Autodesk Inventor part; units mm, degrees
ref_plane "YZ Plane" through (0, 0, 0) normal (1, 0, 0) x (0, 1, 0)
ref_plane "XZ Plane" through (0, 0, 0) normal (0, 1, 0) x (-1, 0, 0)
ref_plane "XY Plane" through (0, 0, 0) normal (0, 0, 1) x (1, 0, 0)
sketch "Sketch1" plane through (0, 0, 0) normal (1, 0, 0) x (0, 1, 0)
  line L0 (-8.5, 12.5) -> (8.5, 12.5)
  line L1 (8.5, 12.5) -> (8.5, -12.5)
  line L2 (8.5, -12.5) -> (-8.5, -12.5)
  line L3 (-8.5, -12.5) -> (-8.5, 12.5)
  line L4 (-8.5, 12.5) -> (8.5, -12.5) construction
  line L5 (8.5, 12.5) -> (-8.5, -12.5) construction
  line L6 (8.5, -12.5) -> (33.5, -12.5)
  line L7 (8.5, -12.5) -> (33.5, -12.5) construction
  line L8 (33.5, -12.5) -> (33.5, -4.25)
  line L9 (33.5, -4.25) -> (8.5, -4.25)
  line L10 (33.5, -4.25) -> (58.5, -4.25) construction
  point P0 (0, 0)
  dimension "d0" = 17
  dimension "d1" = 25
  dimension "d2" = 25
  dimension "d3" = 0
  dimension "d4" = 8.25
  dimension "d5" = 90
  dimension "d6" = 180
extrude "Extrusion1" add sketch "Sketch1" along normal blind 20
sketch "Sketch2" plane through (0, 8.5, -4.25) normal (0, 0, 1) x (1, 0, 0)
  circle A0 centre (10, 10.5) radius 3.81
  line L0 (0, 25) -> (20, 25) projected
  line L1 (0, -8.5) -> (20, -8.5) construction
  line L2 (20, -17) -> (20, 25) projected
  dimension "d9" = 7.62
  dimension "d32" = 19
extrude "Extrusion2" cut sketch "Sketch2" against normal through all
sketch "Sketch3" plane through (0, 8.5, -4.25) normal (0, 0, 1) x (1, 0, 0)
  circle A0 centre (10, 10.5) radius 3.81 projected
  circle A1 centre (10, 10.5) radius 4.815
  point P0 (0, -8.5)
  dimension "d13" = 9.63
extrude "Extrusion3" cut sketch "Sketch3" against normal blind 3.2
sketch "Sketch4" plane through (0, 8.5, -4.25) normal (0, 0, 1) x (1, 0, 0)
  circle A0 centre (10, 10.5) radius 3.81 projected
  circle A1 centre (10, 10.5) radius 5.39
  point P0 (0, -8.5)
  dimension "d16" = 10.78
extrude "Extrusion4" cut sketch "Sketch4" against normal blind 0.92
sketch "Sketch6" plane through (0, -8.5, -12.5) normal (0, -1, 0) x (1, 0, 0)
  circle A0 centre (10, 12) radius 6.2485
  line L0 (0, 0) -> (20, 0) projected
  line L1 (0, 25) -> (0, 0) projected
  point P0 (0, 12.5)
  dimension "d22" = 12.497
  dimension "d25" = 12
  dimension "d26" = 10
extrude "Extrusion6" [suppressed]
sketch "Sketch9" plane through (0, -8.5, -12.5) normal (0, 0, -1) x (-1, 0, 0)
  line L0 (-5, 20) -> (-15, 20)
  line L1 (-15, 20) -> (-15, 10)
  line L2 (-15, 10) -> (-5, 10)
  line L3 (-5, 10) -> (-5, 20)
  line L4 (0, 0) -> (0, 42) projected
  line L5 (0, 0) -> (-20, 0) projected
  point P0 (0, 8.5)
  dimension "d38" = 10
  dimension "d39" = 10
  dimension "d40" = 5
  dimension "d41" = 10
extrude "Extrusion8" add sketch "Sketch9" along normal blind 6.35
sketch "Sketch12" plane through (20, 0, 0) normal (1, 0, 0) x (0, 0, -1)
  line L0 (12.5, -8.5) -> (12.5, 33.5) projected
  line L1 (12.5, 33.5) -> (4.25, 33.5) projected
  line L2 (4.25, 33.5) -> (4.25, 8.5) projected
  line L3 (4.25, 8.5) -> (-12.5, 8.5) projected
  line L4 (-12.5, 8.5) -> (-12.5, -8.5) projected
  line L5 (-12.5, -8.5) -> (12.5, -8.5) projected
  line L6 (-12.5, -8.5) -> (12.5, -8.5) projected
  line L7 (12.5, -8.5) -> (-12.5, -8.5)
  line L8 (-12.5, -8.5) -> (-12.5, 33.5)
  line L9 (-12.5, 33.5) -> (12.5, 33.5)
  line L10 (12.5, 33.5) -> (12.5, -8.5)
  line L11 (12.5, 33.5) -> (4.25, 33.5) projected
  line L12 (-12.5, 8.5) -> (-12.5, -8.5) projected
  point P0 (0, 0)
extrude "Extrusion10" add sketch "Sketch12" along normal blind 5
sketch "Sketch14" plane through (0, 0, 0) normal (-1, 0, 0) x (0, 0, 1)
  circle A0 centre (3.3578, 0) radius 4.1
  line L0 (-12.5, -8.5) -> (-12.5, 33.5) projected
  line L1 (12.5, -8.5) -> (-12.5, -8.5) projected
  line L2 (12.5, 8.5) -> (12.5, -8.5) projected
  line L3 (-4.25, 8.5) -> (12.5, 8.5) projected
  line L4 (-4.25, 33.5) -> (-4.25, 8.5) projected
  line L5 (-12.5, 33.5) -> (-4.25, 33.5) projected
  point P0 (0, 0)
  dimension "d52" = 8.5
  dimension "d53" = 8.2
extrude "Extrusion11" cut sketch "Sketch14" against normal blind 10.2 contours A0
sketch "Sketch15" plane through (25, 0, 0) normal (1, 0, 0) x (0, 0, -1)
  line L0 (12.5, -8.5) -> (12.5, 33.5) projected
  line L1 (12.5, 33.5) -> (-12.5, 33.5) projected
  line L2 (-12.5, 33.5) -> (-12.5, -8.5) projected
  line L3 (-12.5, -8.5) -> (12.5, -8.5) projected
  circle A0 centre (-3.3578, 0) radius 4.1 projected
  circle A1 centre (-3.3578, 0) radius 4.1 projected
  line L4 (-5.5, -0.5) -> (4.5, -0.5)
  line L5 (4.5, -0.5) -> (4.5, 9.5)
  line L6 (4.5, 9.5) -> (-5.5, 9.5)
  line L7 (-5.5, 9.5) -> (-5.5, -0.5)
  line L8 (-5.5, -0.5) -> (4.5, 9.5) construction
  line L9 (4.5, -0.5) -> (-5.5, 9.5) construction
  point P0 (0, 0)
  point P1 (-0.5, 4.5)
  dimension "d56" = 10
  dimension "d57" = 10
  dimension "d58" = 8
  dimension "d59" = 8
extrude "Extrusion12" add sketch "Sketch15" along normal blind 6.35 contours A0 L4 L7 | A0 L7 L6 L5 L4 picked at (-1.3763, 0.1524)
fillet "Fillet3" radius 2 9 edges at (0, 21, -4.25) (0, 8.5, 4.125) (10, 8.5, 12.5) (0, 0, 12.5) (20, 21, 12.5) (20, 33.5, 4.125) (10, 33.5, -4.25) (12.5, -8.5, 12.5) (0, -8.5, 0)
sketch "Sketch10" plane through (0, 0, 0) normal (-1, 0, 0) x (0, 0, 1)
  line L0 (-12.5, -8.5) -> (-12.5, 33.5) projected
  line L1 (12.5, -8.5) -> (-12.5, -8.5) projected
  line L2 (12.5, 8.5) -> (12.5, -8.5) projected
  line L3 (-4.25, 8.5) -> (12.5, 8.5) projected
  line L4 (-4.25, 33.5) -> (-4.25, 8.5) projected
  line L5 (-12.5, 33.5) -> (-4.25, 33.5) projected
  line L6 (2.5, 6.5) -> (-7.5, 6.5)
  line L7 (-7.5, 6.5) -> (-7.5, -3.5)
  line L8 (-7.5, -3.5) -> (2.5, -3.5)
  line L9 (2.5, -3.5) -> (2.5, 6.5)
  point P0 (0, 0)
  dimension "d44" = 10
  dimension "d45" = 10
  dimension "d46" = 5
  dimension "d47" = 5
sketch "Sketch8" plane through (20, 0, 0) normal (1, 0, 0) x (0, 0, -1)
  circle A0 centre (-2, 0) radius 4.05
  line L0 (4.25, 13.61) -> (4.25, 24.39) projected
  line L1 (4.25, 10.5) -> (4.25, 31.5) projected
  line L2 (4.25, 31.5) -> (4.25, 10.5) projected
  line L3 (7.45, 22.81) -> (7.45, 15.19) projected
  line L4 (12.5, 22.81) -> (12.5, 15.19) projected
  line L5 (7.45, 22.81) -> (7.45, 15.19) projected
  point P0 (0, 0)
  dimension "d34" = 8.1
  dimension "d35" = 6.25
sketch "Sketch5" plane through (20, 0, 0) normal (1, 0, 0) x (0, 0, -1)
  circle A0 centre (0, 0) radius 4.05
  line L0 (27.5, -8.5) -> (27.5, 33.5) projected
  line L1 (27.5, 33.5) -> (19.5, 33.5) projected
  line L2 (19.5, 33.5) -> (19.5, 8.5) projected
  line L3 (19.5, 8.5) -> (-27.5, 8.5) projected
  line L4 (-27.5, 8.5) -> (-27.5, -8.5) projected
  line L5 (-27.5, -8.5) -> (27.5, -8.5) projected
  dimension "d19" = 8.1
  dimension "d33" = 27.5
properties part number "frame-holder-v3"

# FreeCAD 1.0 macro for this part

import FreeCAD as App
import Part
import Sketcher

V = App.Vector


def edges_at(feature, points):
    """Names of the edges that pass closest to the given points."""
    edges = feature.Shape.Edges
    near = lambda p: min(range(len(edges)), key=lambda i: edges[i].distToShape(Part.Vertex(*p))[0])
    return sorted({f"Edge{near(p) + 1}" for p in points})

doc = App.newDocument("Part")
body = doc.addObject("PartDesign::Body", "Body")

sketch1 = doc.addObject("Sketcher::SketchObject", "Sketch")
body.addObject(sketch1)
sketch1.AttachmentSupport = (doc.YZ_Plane, [""])
sketch1.MapMode = "FlatFace"
sketch1.addGeometry([
    Part.LineSegment(V(8, 12, 0), V(-8, 12, 0)),
    Part.LineSegment(V(-8, 12, 0), V(-8, -12, 0)),
    Part.LineSegment(V(-8, -12, 0), V(34, -12, 0)),
    Part.LineSegment(V(34, -12, 0), V(34, -4, 0)),
    Part.LineSegment(V(34, -4, 0), V(8, -4, 0)),
    Part.LineSegment(V(8, -4, 0), V(8, 12, 0)),
], False)
sketch1.addConstraint([
    Sketcher.Constraint("Coincident", 0, 2, 1, 1),
    Sketcher.Constraint("Coincident", 1, 2, 2, 1),
    Sketcher.Constraint("Coincident", 2, 2, 3, 1),
    Sketcher.Constraint("Coincident", 3, 2, 4, 1),
    Sketcher.Constraint("Coincident", 4, 2, 5, 1),
    Sketcher.Constraint("Coincident", 5, 2, 0, 1),
    Sketcher.Constraint("Horizontal", 0),
    Sketcher.Constraint("Vertical", 1),
    Sketcher.Constraint("Horizontal", 2),
    Sketcher.Constraint("Vertical", 3),
    Sketcher.Constraint("Horizontal", 4),
    Sketcher.Constraint("Vertical", 5),
    Sketcher.Constraint("Symmetric", 1, 2, 5, 2, -1, 1),
    Sketcher.Constraint("Equal", 4, 1),
    Sketcher.Constraint("DistanceX", 0, 2, 0, 1, 17.0),
    Sketcher.Constraint("DistanceX", 4, 2, 4, 1, 25.0),
    Sketcher.Constraint("DistanceY", 3, 1, 3, 2, 8.25),
])
pad1 = doc.addObject("PartDesign::Pad", "Pad")
body.addObject(pad1)
pad1.Profile = sketch1
pad1.Length = 20

sketch2 = doc.addObject("Sketcher::SketchObject", "Sketch001")
body.addObject(sketch2)
sketch2.AttachmentSupport = (doc.XY_Plane, [""])
sketch2.MapMode = "FlatFace"
sketch2.AttachmentOffset = App.Placement(V(0, 0, -4.25), App.Rotation())
sketch2.addGeometry(Part.Circle(V(10, 19, 0), V(0, 0, 1), 3.8), False)
sketch2.addConstraint([
    Sketcher.Constraint("Diameter", 0, 7.62),
    Sketcher.Constraint("DistanceY", -1, 1, 0, 3, 19.0),
    Sketcher.Constraint("DistanceX", -1, 1, 0, 3, 10.0),
])
pocket1 = doc.addObject("PartDesign::Pocket", "Pocket")
body.addObject(pocket1)
pocket1.Profile = sketch2
pocket1.Type = "ThroughAll"

sketch3 = doc.addObject("Sketcher::SketchObject", "Sketch002")
body.addObject(sketch3)
sketch3.AttachmentSupport = (doc.XY_Plane, [""])
sketch3.MapMode = "FlatFace"
sketch3.AttachmentOffset = App.Placement(V(0, 0, -4.25), App.Rotation())
sketch3.addGeometry([
    Part.Circle(V(10, 19, 0), V(0, 0, 1), 4.8),
    Part.Circle(V(10, 19, 0), V(0, 0, 1), 3.8),
], False)
sketch3.addConstraint([
    Sketcher.Constraint("Coincident", 1, 3, 0, 3),
    Sketcher.Constraint("Diameter", 0, 9.63),
    Sketcher.Constraint("Diameter", 1, 7.62),
    Sketcher.Constraint("DistanceX", -1, 1, 0, 3, 10.0),
    Sketcher.Constraint("DistanceY", -1, 1, 0, 3, 19.0),
])
pocket2 = doc.addObject("PartDesign::Pocket", "Pocket001")
body.addObject(pocket2)
pocket2.Profile = sketch3
pocket2.Length = 3.2

sketch4 = doc.addObject("Sketcher::SketchObject", "Sketch003")
body.addObject(sketch4)
sketch4.AttachmentSupport = (doc.XY_Plane, [""])
sketch4.MapMode = "FlatFace"
sketch4.AttachmentOffset = App.Placement(V(0, 0, -4.25), App.Rotation())
sketch4.addGeometry([
    Part.Circle(V(10, 19, 0), V(0, 0, 1), 5.4),
    Part.Circle(V(10, 19, 0), V(0, 0, 1), 3.8),
], False)
sketch4.addConstraint([
    Sketcher.Constraint("Coincident", 1, 3, 0, 3),
    Sketcher.Constraint("Diameter", 0, 10.78),
    Sketcher.Constraint("Diameter", 1, 7.62),
    Sketcher.Constraint("DistanceX", -1, 1, 0, 3, 10.0),
    Sketcher.Constraint("DistanceY", -1, 1, 0, 3, 19.0),
])
pocket3 = doc.addObject("PartDesign::Pocket", "Pocket002")
body.addObject(pocket3)
pocket3.Profile = sketch4
pocket3.Length = 0.92

sketch5 = doc.addObject("Sketcher::SketchObject", "Sketch004")
body.addObject(sketch5)
sketch5.AttachmentSupport = (doc.XY_Plane, [""])
sketch5.MapMode = "FlatFace"
sketch5.AttachmentOffset = App.Placement(V(0, 0, -12.5), App.Rotation())
sketch5.addGeometry([
    Part.LineSegment(V(5, 2, 0), V(5, 12, 0)),
    Part.LineSegment(V(5, 12, 0), V(15, 12, 0)),
    Part.LineSegment(V(15, 12, 0), V(15, 2, 0)),
    Part.LineSegment(V(15, 2, 0), V(5, 2, 0)),
], False)
sketch5.addConstraint([
    Sketcher.Constraint("Coincident", 0, 2, 1, 1),
    Sketcher.Constraint("Coincident", 1, 2, 2, 1),
    Sketcher.Constraint("Coincident", 2, 2, 3, 1),
    Sketcher.Constraint("Coincident", 3, 2, 0, 1),
    Sketcher.Constraint("Vertical", 0),
    Sketcher.Constraint("Horizontal", 1),
    Sketcher.Constraint("Vertical", 2),
    Sketcher.Constraint("Horizontal", 3),
    Sketcher.Constraint("Equal", 3, 0),
    Sketcher.Constraint("DistanceX", 1, 1, 1, 2, 10.0),
    Sketcher.Constraint("DistanceX", -1, 1, 0, 2, 5.0),
    Sketcher.Constraint("DistanceY", -1, 1, 0, 2, 11.5),
])
pad2 = doc.addObject("PartDesign::Pad", "Pad001")
body.addObject(pad2)
pad2.Profile = sketch5
pad2.Length = 6.35
pad2.Reversed = True

sketch6 = doc.addObject("Sketcher::SketchObject", "Sketch005")
body.addObject(sketch6)
sketch6.AttachmentSupport = (doc.YZ_Plane, [""])
sketch6.MapMode = "FlatFace"
sketch6.AttachmentOffset = App.Placement(V(0, 0, 20), App.Rotation())
sketch6.addGeometry([
    Part.LineSegment(V(-8, 12, 0), V(-8, -12, 0)),
    Part.LineSegment(V(-8, -12, 0), V(34, -12, 0)),
    Part.LineSegment(V(34, -12, 0), V(34, 12, 0)),
    Part.LineSegment(V(34, 12, 0), V(-8, 12, 0)),
], False)
sketch6.addConstraint([
    Sketcher.Constraint("Coincident", 0, 2, 1, 1),
    Sketcher.Constraint("Coincident", 1, 2, 2, 1),
    Sketcher.Constraint("Coincident", 2, 2, 3, 1),
    Sketcher.Constraint("Coincident", 3, 2, 0, 1),
    Sketcher.Constraint("Vertical", 0),
    Sketcher.Constraint("Horizontal", 1),
    Sketcher.Constraint("Vertical", 2),
    Sketcher.Constraint("Horizontal", 3),
    Sketcher.Constraint("DistanceX", 1, 1, 1, 2, 42.0),
    Sketcher.Constraint("DistanceY", 0, 2, 0, 1, 25.0),
    Sketcher.Constraint("DistanceX", 0, 2, -1, 1, 8.5),
    Sketcher.Constraint("DistanceY", 0, 2, -1, 1, 12.5),
])
pad3 = doc.addObject("PartDesign::Pad", "Pad002")
body.addObject(pad3)
pad3.Profile = sketch6
pad3.Length = 5

sketch7 = doc.addObject("Sketcher::SketchObject", "Sketch006")
body.addObject(sketch7)
sketch7.AttachmentSupport = (doc.YZ_Plane, [""])
sketch7.MapMode = "FlatFace"
sketch7.addGeometry(Part.Circle(V(0, 3.4, 0), V(0, 0, 1), 4.1), False)
sketch7.addConstraint([
    Sketcher.Constraint("PointOnObject", 0, 3, -2),
    Sketcher.Constraint("Diameter", 0, 8.2),
    Sketcher.Constraint("DistanceY", -1, 1, 0, 3, 3.3578),
])
pocket4 = doc.addObject("PartDesign::Pocket", "Pocket003")
body.addObject(pocket4)
pocket4.Profile = sketch7
pocket4.Length = 10.2
pocket4.Reversed = True

sketch8 = doc.addObject("Sketcher::SketchObject", "Sketch007")
body.addObject(sketch8)
sketch8.AttachmentSupport = (doc.YZ_Plane, [""])
sketch8.MapMode = "FlatFace"
sketch8.AttachmentOffset = App.Placement(V(0, 0, 25), App.Rotation())
sketch8.addGeometry([
    Part.LineSegment(V(0, 6, 0), V(0, -4, 0)),
    Part.LineSegment(V(0, -4, 0), V(10, -4, 0)),
    Part.LineSegment(V(10, -4, 0), V(10, 6, 0)),
    Part.LineSegment(V(10, 6, 0), V(0, 6, 0)),
], False)
sketch8.addConstraint([
    Sketcher.Constraint("Coincident", 0, 2, 1, 1),
    Sketcher.Constraint("Coincident", 1, 2, 2, 1),
    Sketcher.Constraint("Coincident", 2, 2, 3, 1),
    Sketcher.Constraint("Coincident", 3, 2, 0, 1),
    Sketcher.Constraint("Vertical", 0),
    Sketcher.Constraint("Horizontal", 1),
    Sketcher.Constraint("Vertical", 2),
    Sketcher.Constraint("Horizontal", 3),
    Sketcher.Constraint("Equal", 3, 0),
    Sketcher.Constraint("DistanceX", 1, 1, 1, 2, 10.0),
    Sketcher.Constraint("DistanceX", 0, 2, -1, 1, 0.5),
    Sketcher.Constraint("DistanceY", 0, 2, -1, 1, 4.5),
])
pad4 = doc.addObject("PartDesign::Pad", "Pad003")
body.addObject(pad4)
pad4.Profile = sketch8
pad4.Length = 6.35
doc.recompute()

fillet = doc.addObject("PartDesign::Fillet", "Fillet")
body.addObject(fillet)
fillet.Base = (pad4, edges_at(pad4, [
    (0, 21, -4.25),
    (0, 8.5, 4.125),
    (10, 8.5, 12.5),
    (0, 0, 12.5),
    (20, 21, 12.5),
    (20, 33.5, 4.125),
    (10, 33.5, -4.25),
    (12.5, -8.5, 12.5),
    (0, -8.5, 0),
]))
fillet.Radius = 2

doc.recompute()
